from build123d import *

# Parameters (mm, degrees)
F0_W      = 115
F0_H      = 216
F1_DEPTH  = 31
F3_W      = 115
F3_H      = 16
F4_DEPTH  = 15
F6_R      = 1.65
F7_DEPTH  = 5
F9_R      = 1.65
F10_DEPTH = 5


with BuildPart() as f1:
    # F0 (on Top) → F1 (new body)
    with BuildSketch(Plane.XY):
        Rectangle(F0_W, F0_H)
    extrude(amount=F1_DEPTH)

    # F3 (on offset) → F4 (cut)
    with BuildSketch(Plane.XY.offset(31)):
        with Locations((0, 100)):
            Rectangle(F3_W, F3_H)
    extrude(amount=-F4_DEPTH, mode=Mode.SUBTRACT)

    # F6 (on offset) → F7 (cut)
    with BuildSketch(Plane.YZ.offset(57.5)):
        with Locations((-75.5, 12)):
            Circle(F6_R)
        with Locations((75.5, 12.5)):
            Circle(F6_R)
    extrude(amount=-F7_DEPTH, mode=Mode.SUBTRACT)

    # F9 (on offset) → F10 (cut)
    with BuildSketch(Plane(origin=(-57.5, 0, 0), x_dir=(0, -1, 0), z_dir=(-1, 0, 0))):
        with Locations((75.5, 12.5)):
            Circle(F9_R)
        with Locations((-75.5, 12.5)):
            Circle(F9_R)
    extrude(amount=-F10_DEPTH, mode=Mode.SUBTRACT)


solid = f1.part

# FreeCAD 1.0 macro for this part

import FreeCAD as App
import Part
import Sketcher


def add_polygon(sketch, points):
    """Adds a closed chain of lines whose ends are joined by coincident constraints."""
    first, n = sketch.GeometryCount, len(points)
    for a, b in zip(points, points[1:] + points[:1]):
        sketch.addGeometry(Part.LineSegment(App.Vector(*a, 0), App.Vector(*b, 0)), False)
    for i in range(n):
        sketch.addConstraint(Sketcher.Constraint("Coincident", first + i, 2, first + (i + 1) % n, 1))

doc = App.newDocument("Part")
body = doc.addObject("PartDesign::Body", "Body")

# Sketch on XY plane
sketch1 = body.newObject("Sketcher::SketchObject", "Sketch")
sketch1.AttachmentSupport = (doc.getObject("XY_Plane"), [""])
sketch1.MapMode = "FlatFace"
add_polygon(sketch1, [(-57.5, 108), (-57.5, -108), (57.5, -108), (57.5, 108)])  # lines 0-3
sketch1.addConstraint(Sketcher.Constraint("Vertical", 0))
sketch1.addConstraint(Sketcher.Constraint("Horizontal", 1))
sketch1.addConstraint(Sketcher.Constraint("Vertical", 2))
sketch1.addConstraint(Sketcher.Constraint("Horizontal", 3))
sketch1.addConstraint(Sketcher.Constraint("Symmetric", 0, 2, 2, 2, -1, 1))
sketch1.addConstraint(Sketcher.Constraint("DistanceX", 1, 1, 1, 2, 115.0))
sketch1.addConstraint(Sketcher.Constraint("DistanceY", 0, 2, 0, 1, 216.0))
pad1 = body.newObject("PartDesign::Pad", "Pad")
pad1.Profile = sketch1
pad1.Length = 31

# Sketch on XY plane
sketch2 = body.newObject("Sketcher::SketchObject", "Sketch001")
sketch2.AttachmentSupport = (doc.getObject("XY_Plane"), [""])
sketch2.MapMode = "FlatFace"
sketch2.AttachmentOffset = App.Placement(App.Vector(0, 0, 31), App.Rotation())
add_polygon(sketch2, [(-57.5, 108), (-57.5, 92), (57.5, 92), (57.5, 108)])  # lines 0-3
sketch2.addConstraint(Sketcher.Constraint("Vertical", 0))
sketch2.addConstraint(Sketcher.Constraint("Horizontal", 1))
sketch2.addConstraint(Sketcher.Constraint("Vertical", 2))
sketch2.addConstraint(Sketcher.Constraint("Horizontal", 3))
sketch2.addConstraint(Sketcher.Constraint("DistanceX", 1, 1, 1, 2, 115.0))
sketch2.addConstraint(Sketcher.Constraint("DistanceY", 0, 2, 0, 1, 16.0))
sketch2.addConstraint(Sketcher.Constraint("DistanceY", -1, 1, 0, 2, 92.0))
sketch2.addConstraint(Sketcher.Constraint("DistanceX", 0, 2, -1, 1, 57.5))
pocket1 = body.newObject("PartDesign::Pocket", "Pocket")
pocket1.Profile = sketch2
pocket1.Length = 15

# Sketch on YZ plane
sketch3 = body.newObject("Sketcher::SketchObject", "Sketch002")
sketch3.AttachmentSupport = (doc.getObject("YZ_Plane"), [""])
sketch3.MapMode = "FlatFace"
sketch3.AttachmentOffset = App.Placement(App.Vector(0, 0, 57.5), App.Rotation())
sketch3.addGeometry(Part.Circle(App.Vector(-75.5, 12, 0), App.Vector(0, 0, 1), 1.65), False)
sketch3.addGeometry(Part.Circle(App.Vector(75.5, 12.5, 0), App.Vector(0, 0, 1), 1.65), False)
sketch3.addConstraint(Sketcher.Constraint("Equal", 0, 1))
sketch3.addConstraint(Sketcher.Constraint("Diameter", 0, 3.3))
sketch3.addConstraint(Sketcher.Constraint("DistanceY", -1, 1, 0, 3, 12.0))
sketch3.addConstraint(Sketcher.Constraint("DistanceX", 0, 3, 1, 3, 151.0))
sketch3.addConstraint(Sketcher.Constraint("DistanceX", 0, 3, -1, 1, 75.5))
sketch3.addConstraint(Sketcher.Constraint("DistanceY", -1, 1, 1, 3, 12.5))
pocket2 = body.newObject("PartDesign::Pocket", "Pocket001")
pocket2.Profile = sketch3
pocket2.Length = 5

# Sketch on YZ plane
sketch4 = body.newObject("Sketcher::SketchObject", "Sketch003")
sketch4.AttachmentSupport = (doc.getObject("YZ_Plane"), [""])
sketch4.MapMode = "FlatFace"
sketch4.AttachmentOffset = App.Placement(App.Vector(0, 0, -57.5), App.Rotation())
sketch4.addGeometry(Part.Circle(App.Vector(-75.5, 12.5, 0), App.Vector(0, 0, 1), 1.65), False)
sketch4.addGeometry(Part.Circle(App.Vector(75.5, 12.5, 0), App.Vector(0, 0, 1), 1.65), False)
sketch4.addConstraint(Sketcher.Constraint("Equal", 0, 1))
sketch4.addConstraint(Sketcher.Constraint("Symmetric", 0, 3, 1, 3, -2))
sketch4.addConstraint(Sketcher.Constraint("Diameter", 0, 3.3))
sketch4.addConstraint(Sketcher.Constraint("DistanceX", 0, 3, 1, 3, 151.0))
sketch4.addConstraint(Sketcher.Constraint("DistanceY", -1, 1, 0, 3, 12.5))
pocket3 = body.newObject("PartDesign::Pocket", "Pocket002")
pocket3.Profile = sketch4
pocket3.Length = 5
pocket3.Reversed = True

doc.recompute()
